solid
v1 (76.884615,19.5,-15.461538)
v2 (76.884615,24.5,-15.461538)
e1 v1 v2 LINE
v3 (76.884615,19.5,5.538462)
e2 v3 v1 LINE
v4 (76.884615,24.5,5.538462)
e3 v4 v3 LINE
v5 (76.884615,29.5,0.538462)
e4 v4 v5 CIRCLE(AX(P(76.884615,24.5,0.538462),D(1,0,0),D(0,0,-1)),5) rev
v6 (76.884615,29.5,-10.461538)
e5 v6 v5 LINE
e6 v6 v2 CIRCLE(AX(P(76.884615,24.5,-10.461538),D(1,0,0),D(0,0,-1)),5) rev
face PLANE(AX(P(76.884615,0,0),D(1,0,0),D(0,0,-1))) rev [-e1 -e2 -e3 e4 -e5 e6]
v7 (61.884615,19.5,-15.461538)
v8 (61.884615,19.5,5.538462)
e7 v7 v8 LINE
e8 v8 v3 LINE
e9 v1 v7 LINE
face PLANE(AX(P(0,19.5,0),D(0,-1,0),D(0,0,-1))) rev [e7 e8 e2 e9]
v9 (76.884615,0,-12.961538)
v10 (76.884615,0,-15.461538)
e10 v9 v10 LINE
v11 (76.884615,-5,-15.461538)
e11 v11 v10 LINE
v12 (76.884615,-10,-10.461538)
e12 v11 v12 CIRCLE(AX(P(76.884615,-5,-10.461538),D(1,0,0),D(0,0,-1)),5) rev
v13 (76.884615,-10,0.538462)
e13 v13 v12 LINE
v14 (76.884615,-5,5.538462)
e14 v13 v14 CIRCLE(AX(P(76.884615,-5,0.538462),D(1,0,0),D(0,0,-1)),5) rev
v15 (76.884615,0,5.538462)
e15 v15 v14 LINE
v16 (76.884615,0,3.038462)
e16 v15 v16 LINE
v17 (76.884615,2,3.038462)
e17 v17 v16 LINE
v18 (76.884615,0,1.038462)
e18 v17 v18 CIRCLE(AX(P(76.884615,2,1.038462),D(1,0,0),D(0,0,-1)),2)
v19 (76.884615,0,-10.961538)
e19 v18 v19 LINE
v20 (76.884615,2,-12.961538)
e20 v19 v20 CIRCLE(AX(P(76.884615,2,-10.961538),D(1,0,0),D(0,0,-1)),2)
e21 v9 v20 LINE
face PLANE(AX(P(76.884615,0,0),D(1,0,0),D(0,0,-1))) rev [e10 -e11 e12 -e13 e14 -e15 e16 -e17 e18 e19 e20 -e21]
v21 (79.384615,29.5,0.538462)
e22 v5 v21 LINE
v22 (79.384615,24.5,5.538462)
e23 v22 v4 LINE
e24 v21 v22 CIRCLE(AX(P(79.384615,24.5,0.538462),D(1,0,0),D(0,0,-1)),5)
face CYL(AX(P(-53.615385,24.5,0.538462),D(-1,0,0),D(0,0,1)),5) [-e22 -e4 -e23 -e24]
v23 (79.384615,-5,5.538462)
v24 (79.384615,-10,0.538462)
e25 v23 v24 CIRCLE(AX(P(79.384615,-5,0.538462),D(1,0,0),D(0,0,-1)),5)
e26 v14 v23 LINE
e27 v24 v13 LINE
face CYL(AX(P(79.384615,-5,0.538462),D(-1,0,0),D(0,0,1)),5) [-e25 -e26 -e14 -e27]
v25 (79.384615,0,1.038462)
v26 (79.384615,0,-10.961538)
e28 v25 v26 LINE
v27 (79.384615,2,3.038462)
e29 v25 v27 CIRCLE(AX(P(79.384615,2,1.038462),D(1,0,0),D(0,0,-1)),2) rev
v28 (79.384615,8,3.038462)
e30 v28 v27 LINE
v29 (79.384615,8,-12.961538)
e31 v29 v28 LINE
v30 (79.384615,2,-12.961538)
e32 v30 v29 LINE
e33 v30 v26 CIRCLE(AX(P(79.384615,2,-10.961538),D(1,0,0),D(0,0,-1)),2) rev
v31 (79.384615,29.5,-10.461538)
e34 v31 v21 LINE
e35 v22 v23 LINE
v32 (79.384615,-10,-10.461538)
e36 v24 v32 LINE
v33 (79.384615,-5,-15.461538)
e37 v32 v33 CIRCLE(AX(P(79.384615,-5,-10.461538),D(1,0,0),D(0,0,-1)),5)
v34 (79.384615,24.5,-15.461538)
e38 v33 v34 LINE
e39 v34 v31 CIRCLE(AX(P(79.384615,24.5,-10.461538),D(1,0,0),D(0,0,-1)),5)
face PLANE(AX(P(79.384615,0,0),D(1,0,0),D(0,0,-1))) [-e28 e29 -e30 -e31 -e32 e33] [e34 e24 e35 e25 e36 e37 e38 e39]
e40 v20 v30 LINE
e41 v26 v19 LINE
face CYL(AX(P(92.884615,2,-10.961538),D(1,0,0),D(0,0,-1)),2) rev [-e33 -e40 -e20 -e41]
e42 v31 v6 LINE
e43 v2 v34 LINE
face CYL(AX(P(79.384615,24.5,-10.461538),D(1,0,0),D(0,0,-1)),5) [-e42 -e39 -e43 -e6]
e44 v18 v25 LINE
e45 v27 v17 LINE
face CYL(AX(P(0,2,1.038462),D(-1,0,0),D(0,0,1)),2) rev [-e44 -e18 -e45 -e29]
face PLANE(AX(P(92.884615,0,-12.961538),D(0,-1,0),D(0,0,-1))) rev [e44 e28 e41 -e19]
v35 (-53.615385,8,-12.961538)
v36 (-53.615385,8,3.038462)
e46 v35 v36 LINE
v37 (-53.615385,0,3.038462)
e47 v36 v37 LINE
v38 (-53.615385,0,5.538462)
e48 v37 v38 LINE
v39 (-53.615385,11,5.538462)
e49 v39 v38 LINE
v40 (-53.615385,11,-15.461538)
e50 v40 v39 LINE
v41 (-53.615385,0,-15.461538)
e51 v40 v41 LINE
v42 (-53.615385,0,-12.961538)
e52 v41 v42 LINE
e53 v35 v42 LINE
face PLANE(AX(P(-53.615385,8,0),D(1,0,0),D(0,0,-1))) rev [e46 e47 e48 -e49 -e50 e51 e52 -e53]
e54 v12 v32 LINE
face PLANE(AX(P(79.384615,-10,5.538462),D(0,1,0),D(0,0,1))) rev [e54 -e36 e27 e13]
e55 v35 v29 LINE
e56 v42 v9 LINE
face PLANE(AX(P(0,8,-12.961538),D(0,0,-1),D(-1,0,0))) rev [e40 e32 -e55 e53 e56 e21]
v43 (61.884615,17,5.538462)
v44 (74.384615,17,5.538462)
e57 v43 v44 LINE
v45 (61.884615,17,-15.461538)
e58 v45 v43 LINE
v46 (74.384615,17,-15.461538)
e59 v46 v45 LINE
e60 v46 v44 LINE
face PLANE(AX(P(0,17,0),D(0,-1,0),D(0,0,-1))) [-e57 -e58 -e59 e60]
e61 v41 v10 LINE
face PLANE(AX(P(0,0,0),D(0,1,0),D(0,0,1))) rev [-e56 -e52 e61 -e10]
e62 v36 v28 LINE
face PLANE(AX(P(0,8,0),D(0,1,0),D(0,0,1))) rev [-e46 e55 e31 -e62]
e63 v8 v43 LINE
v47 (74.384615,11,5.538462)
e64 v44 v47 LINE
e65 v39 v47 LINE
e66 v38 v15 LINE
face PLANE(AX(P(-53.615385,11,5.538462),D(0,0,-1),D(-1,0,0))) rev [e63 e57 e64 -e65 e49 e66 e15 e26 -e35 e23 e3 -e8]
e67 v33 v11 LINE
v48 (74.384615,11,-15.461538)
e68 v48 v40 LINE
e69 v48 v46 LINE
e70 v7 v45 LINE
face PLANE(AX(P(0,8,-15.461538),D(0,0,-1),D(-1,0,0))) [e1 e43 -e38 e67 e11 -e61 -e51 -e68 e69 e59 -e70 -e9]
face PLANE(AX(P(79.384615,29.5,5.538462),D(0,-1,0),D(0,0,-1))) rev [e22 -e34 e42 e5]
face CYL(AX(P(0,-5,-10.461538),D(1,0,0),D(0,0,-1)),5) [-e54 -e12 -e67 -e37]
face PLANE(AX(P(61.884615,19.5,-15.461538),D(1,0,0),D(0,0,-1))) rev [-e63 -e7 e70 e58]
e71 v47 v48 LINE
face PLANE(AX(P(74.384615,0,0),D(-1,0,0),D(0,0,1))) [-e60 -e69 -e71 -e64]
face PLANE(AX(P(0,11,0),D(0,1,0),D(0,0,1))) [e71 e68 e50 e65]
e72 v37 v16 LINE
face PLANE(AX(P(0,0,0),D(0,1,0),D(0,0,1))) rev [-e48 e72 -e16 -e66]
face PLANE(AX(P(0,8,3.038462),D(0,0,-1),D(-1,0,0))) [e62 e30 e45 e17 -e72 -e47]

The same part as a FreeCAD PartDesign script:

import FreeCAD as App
import Part
import Sketcher

V = App.Vector
Q = App.Units.Quantity


def edges_at(feature, points):
    """Names of the edges that pass closest to the given points."""
    edges = feature.Shape.Edges
    near = lambda p: min(range(len(edges)), key=lambda i: edges[i].distToShape(Part.Vertex(*p))[0])
    return sorted({f"Edge{near(p) + 1}" for p in points})


def add_polygon(sketch, points):
    """Adds a closed chain of lines whose ends are joined by coincident constraints."""
    first, n = sketch.GeometryCount, len(points)
    for a, b in zip(points, points[1:] + points[:1]):
        sketch.addGeometry(Part.LineSegment(App.Vector(*a, 0), App.Vector(*b, 0)), False)
    for i in range(n):
        sketch.addConstraint(Sketcher.Constraint("Coincident", first + i, 2, first + (i + 1) % n, 1))

doc = App.newDocument("Part")
params = doc.addObject("Spreadsheet::Sheet", "Params")
for row, (alias, value) in enumerate([
    ("sketch1_width", "128 mm"),
    ("sketch1_height", "2.5 mm"),
    ("pad1_length", "8 mm"),
    ("sketch2_width", "128 mm"),
    ("sketch2_height", "2.5 mm"),
    ("pad2_length", "8 mm"),
    ("sketch3_width", "128 mm"),
    ("sketch3_height", "21 mm"),
    ("pad3_length", "3 mm"),
    ("sketch4_width", "17 mm"),
    ("sketch4_height", "21 mm"),
    ("pad4_length", "2.5 mm"),
    ("sketch5_width", "15 mm"),
    ("sketch5_height", "21 mm"),
    ("pad5_length", "2.5 mm"),
    ("sketch6_height", "21 mm"),
    ("sketch6_width", "39.5 mm"),
    ("pad6_length", "2.5 mm"),
    ("fillet_radius", "5 mm"),
    ("sketch7_width", "8 mm"),
    ("sketch7_height", "16 mm"),
    ("pocket1_length", "18.5 mm"),
    ("fillet2_radius", "2 mm"),
], start=1):
    params.set(f"A{row}", alias)
    params.set(f"B{row}", "=" + value)
    params.setAlias(f"B{row}", alias)

body = doc.addObject("PartDesign::Body", "Body")

sketch1 = doc.addObject("Sketcher::SketchObject", "Sketch")
body.addObject(sketch1)
sketch1.AttachmentSupport = (doc.XZ_Plane, [""])
sketch1.MapMode = "FlatFace"
add_polygon(sketch1, [(-53.615385, -15.461538), (-53.615385, -12.961538), (74.384615, -12.961538), (74.384615, -15.461538)])
sketch1.addConstraint(Sketcher.Constraint("Vertical", 0))
sketch1.addConstraint(Sketcher.Constraint("Horizontal", 1))
sketch1.addConstraint(Sketcher.Constraint("Vertical", 2))
sketch1.addConstraint(Sketcher.Constraint("Horizontal", 3))
sketch1.addConstraint(Sketcher.Constraint("DistanceX", 1, 1, 1, 2, Q("128 mm")))
sketch1.addConstraint(Sketcher.Constraint("DistanceY", 0, 1, 0, 2, Q("2.5 mm")))
sketch1.addConstraint(Sketcher.Constraint("DistanceY", 0, 2, -1, 1, Q("12.961538 mm")))
sketch1.addConstraint(Sketcher.Constraint("DistanceX", 0, 2, -1, 1, Q("53.615385 mm")))
sketch1.setExpression("Constraints[8]", "Params.sketch1_width")
sketch1.setExpression("Constraints[9]", "Params.sketch1_height")
pad1 = doc.addObject("PartDesign::Pad", "Pad")
body.addObject(pad1)
pad1.Profile = sketch1
pad1.setExpression("Length", "Params.pad1_length")
pad1.Reversed = True
body2 = doc.addObject("PartDesign::Body", "Body001")

sketch2 = doc.addObject("Sketcher::SketchObject", "Sketch001")
body2.addObject(sketch2)
sketch2.AttachmentSupport = (doc.getObject("XZ_Plane001"), [""])
sketch2.MapMode = "FlatFace"
add_polygon(sketch2, [(-53.615385, 3.038462), (-53.615385, 5.538462), (74.384615, 5.538462), (74.384615, 3.038462)])
sketch2.addConstraint(Sketcher.Constraint("Vertical", 0))
sketch2.addConstraint(Sketcher.Constraint("Horizontal", 1))
sketch2.addConstraint(Sketcher.Constraint("Vertical", 2))
sketch2.addConstraint(Sketcher.Constraint("Horizontal", 3))
sketch2.addConstraint(Sketcher.Constraint("DistanceX", 1, 1, 1, 2, Q("128 mm")))
sketch2.addConstraint(Sketcher.Constraint("DistanceY", 0, 1, 0, 2, Q("2.5 mm")))
sketch2.addConstraint(Sketcher.Constraint("DistanceY", -1, 1, 0, 2, Q("5.538462 mm")))
sketch2.addConstraint(Sketcher.Constraint("DistanceX", 0, 2, -1, 1, Q("53.615385 mm")))
sketch2.setExpression("Constraints[8]", "Params.sketch2_width")
sketch2.setExpression("Constraints[9]", "Params.sketch2_height")
pad2 = doc.addObject("PartDesign::Pad", "Pad001")
body2.addObject(pad2)
pad2.Profile = sketch2
pad2.setExpression("Length", "Params.pad2_length")
pad2.Reversed = True
body.AllowCompound = True
doc.recompute()

boolean = doc.addObject("PartDesign::Boolean", "Boolean")
body.addObject(boolean)
boolean.Type = "Fuse"
boolean.addObjects([body2])

sketch3 = doc.addObject("Sketcher::SketchObject", "Sketch002")
body.addObject(sketch3)
sketch3.AttachmentSupport = (doc.XZ_Plane, [""])
sketch3.MapMode = "FlatFace"
sketch3.AttachmentOffset = App.Placement(V(0, 0, -8), App.Rotation())
add_polygon(sketch3, [(-53.615385, -15.461538), (-53.615385, 5.538462), (74.384615, 5.538462), (74.384615, -15.461538)])
sketch3.addConstraint(Sketcher.Constraint("Vertical", 0))
sketch3.addConstraint(Sketcher.Constraint("Horizontal", 1))
sketch3.addConstraint(Sketcher.Constraint("Vertical", 2))
sketch3.addConstraint(Sketcher.Constraint("Horizontal", 3))
sketch3.addConstraint(Sketcher.Constraint("DistanceX", 1, 1, 1, 2, Q("128 mm")))
sketch3.addConstraint(Sketcher.Constraint("DistanceY", 0, 1, 0, 2, Q("21 mm")))
sketch3.addConstraint(Sketcher.Constraint("DistanceY", -1, 1, 0, 2, Q("5.538462 mm")))
sketch3.addConstraint(Sketcher.Constraint("DistanceX", 0, 2, -1, 1, Q("53.615385 mm")))
sketch3.setExpression("Constraints[8]", "Params.sketch3_width")
sketch3.setExpression("Constraints[9]", "Params.sketch3_height")
pad3 = doc.addObject("PartDesign::Pad", "Pad002")
body.addObject(pad3)
pad3.Profile = sketch3
pad3.setExpression("Length", "Params.pad3_length")
pad3.Reversed = True

sketch4 = doc.addObject("Sketcher::SketchObject", "Sketch003")
body.addObject(sketch4)
sketch4.AttachmentSupport = (doc.YZ_Plane, [""])
sketch4.MapMode = "FlatFace"
sketch4.AttachmentOffset = App.Placement(V(0, 0, 74.384615), App.Rotation())
add_polygon(sketch4, [(17, 5.538462), (0, 5.538462), (0, -15.461538), (17, -15.461538)])
sketch4.addConstraint(Sketcher.Constraint("Horizontal", 0))
sketch4.addConstraint(Sketcher.Constraint("Vertical", 1))
sketch4.addConstraint(Sketcher.Constraint("Horizontal", 2))
sketch4.addConstraint(Sketcher.Constraint("Vertical", 3))
sketch4.addConstraint(Sketcher.Constraint("PointOnObject", 0, 2, -2))
sketch4.addConstraint(Sketcher.Constraint("DistanceX", 0, 2, 0, 1, Q("17 mm")))
sketch4.addConstraint(Sketcher.Constraint("DistanceY", 1, 2, 1, 1, Q("21 mm")))
sketch4.addConstraint(Sketcher.Constraint("DistanceY", -1, 1, 0, 2, Q("5.538462 mm")))
sketch4.setExpression("Constraints[9]", "Params.sketch4_width")
sketch4.setExpression("Constraints[10]", "Params.sketch4_height")
pad4 = doc.addObject("PartDesign::Pad", "Pad003")
body.addObject(pad4)
pad4.Profile = sketch4
pad4.setExpression("Length", "Params.pad4_length")

sketch5 = doc.addObject("Sketcher::SketchObject", "Sketch004")
body.addObject(sketch5)
sketch5.AttachmentSupport = (doc.XZ_Plane, [""])
sketch5.MapMode = "FlatFace"
sketch5.AttachmentOffset = App.Placement(V(0, 0, -17), App.Rotation())
add_polygon(sketch5, [(61.884615, -15.461538), (61.884615, 5.538462), (76.884615, 5.538462), (76.884615, -15.461538)])
sketch5.addConstraint(Sketcher.Constraint("Vertical", 0))
sketch5.addConstraint(Sketcher.Constraint("Horizontal", 1))
sketch5.addConstraint(Sketcher.Constraint("Vertical", 2))
sketch5.addConstraint(Sketcher.Constraint("Horizontal", 3))
sketch5.addConstraint(Sketcher.Constraint("DistanceX", 1, 1, 1, 2, Q("15 mm")))
sketch5.addConstraint(Sketcher.Constraint("DistanceY", 0, 1, 0, 2, Q("21 mm")))
sketch5.addConstraint(Sketcher.Constraint("DistanceY", -1, 1, 0, 2, Q("5.538462 mm")))
sketch5.addConstraint(Sketcher.Constraint("DistanceX", -1, 1, 0, 2, Q("61.884615 mm")))
sketch5.setExpression("Constraints[8]", "Params.sketch5_width")
sketch5.setExpression("Constraints[9]", "Params.sketch5_height")
pad5 = doc.addObject("PartDesign::Pad", "Pad004")
body.addObject(pad5)
pad5.Profile = sketch5
pad5.setExpression("Length", "Params.pad5_length")
pad5.Reversed = True

sketch6 = doc.addObject("Sketcher::SketchObject", "Sketch005")
body.addObject(sketch6)
sketch6.AttachmentSupport = (doc.YZ_Plane, [""])
sketch6.MapMode = "FlatFace"
sketch6.AttachmentOffset = App.Placement(V(0, 0, 76.884615), App.Rotation())
add_polygon(sketch6, [(29.5, 5.538462), (-10, 5.538462), (-10, -15.461538), (29.5, -15.461538)])
sketch6.addConstraint(Sketcher.Constraint("Horizontal", 0))
sketch6.addConstraint(Sketcher.Constraint("Vertical", 1))
sketch6.addConstraint(Sketcher.Constraint("Horizontal", 2))
sketch6.addConstraint(Sketcher.Constraint("Vertical", 3))
sketch6.addConstraint(Sketcher.Constraint("DistanceY", 1, 2, 1, 1, Q("21 mm")))
sketch6.addConstraint(Sketcher.Constraint("DistanceX", 0, 2, 0, 1, Q("39.5 mm")))
sketch6.addConstraint(Sketcher.Constraint("DistanceX", 0, 2, -1, 1, Q("10 mm")))
sketch6.addConstraint(Sketcher.Constraint("DistanceY", -1, 1, 0, 2, Q("5.538462 mm")))
sketch6.setExpression("Constraints[8]", "Params.sketch6_height")
sketch6.setExpression("Constraints[9]", "Params.sketch6_width")
pad6 = doc.addObject("PartDesign::Pad", "Pad005")
body.addObject(pad6)
pad6.Profile = sketch6
pad6.setExpression("Length", "Params.pad6_length")
doc.recompute()

fillet = doc.addObject("PartDesign::Fillet", "Fillet")
body.addObject(fillet)
fillet.Base = (pad6, edges_at(pad6, [
    (78.135, 29.5, 5.538),
    (78.135, -10, 5.538),
    (78.135, -10, -15.462),
    (78.135, 29.5, -15.462),
]))
fillet.setExpression("Radius", "Params.fillet_radius")

sketch7 = doc.addObject("Sketcher::SketchObject", "Sketch006")
body.addObject(sketch7)
sketch7.AttachmentSupport = (doc.YZ_Plane, [""])
sketch7.MapMode = "FlatFace"
sketch7.AttachmentOffset = App.Placement(V(0, 0, 74.384615), App.Rotation())
add_polygon(sketch7, [(8, -12.961538), (0, -12.961538), (0, 3.038462), (8, 3.038462)])
sketch7.addConstraint(Sketcher.Constraint("Horizontal", 0))
sketch7.addConstraint(Sketcher.Constraint("Vertical", 1))
sketch7.addConstraint(Sketcher.Constraint("Horizontal", 2))
sketch7.addConstraint(Sketcher.Constraint("Vertical", 3))
sketch7.addConstraint(Sketcher.Constraint("PointOnObject", 0, 2, -2))
sketch7.addConstraint(Sketcher.Constraint("DistanceX", 0, 2, 0, 1, Q("8 mm")))
sketch7.addConstraint(Sketcher.Constraint("DistanceY", 1, 1, 1, 2, Q("16 mm")))
sketch7.addConstraint(Sketcher.Constraint("DistanceY", 0, 2, -1, 1, Q("12.961538 mm")))
sketch7.setExpression("Constraints[9]", "Params.sketch7_width")
sketch7.setExpression("Constraints[10]", "Params.sketch7_height")
pocket1 = doc.addObject("PartDesign::Pocket", "Pocket")
body.addObject(pocket1)
pocket1.Profile = sketch7
pocket1.setExpression("Length", "Params.pocket1_length")
pocket1.Reversed = True
doc.recompute()

fillet2 = doc.addObject("PartDesign::Fillet", "Fillet001")
body.addObject(fillet2)
fillet2.Base = (pocket1, edges_at(pocket1, [(78.135, 0, 3.038), (78.135, 0, -12.962)]))
fillet2.setExpression("Radius", "Params.fillet2_radius")

doc.recompute()
